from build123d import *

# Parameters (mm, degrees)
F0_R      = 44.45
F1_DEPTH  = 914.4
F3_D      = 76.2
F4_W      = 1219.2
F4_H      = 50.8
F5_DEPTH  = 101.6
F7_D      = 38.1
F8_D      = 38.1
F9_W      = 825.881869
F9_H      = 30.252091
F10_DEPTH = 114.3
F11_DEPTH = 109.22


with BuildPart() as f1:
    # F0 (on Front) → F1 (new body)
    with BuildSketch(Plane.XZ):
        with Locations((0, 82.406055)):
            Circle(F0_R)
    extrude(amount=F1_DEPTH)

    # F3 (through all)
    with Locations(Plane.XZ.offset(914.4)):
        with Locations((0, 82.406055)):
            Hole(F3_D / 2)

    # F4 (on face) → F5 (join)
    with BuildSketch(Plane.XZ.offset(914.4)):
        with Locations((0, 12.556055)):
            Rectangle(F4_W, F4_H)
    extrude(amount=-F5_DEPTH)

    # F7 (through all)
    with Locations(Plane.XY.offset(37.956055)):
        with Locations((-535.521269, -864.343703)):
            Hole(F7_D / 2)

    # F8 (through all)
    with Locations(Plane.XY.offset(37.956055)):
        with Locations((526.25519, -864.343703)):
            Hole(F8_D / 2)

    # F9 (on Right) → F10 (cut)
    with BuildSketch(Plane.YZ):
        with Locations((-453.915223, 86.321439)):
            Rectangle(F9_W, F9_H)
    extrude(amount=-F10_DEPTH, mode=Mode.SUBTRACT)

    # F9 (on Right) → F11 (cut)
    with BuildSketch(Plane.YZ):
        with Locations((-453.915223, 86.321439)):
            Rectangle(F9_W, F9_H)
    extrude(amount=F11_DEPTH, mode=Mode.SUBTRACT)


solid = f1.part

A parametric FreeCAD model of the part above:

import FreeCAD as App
import Part
import Sketcher

V = App.Vector
Q = App.Units.Quantity

doc = App.newDocument("Part")
body = doc.addObject("PartDesign::Body", "Body")
body.AllowCompound = True

# Sketch on XZ plane
sketch1 = body.newObject("Sketcher::SketchObject", "Sketch")
sketch1.AttachmentSupport = (doc.getObject("XZ_Plane"), [""])
sketch1.MapMode = "FlatFace"
sketch1.addGeometry(Part.Circle(V(0, 82, 0), V(0, 0, 1), 44), False)
sketch1.addConstraint([
    Sketcher.Constraint("PointOnObject", 0, 3, -2),
    Sketcher.Constraint("Diameter", 0, Q("3.5 in")),
    Sketcher.Constraint("DistanceY", -1, 1, 0, 3, 82.406055),
])
pad1 = body.newObject("PartDesign::Pad", "Pad")
pad1.Profile = sketch1
pad1.Length = Q("36 in")

# Sketch on XZ plane
sketch2 = body.newObject("Sketcher::SketchObject", "Sketch001")
sketch2.AttachmentSupport = (doc.getObject("XZ_Plane"), [""])
sketch2.MapMode = "FlatFace"
sketch2.AttachmentOffset = App.Placement(V(0, 0, 36 * 25.4), App.Rotation())
sketch2.addGeometry(Part.Circle(V(0, 82, 0), V(0, 0, 1), 38), False)
sketch2.addConstraint([
    Sketcher.Constraint("PointOnObject", 0, 3, -2),
    Sketcher.Constraint("Diameter", 0, Q("3 in")),
    Sketcher.Constraint("DistanceY", -1, 1, 0, 3, 82.406055),
])
doc.recompute()
hole = body.newObject("PartDesign::Hole", "Hole")
hole.Profile = sketch2
hole.ThreadType = "None"
hole.Diameter = Q("3 in")
hole.DepthType = "ThroughAll"

# Sketch on XZ plane
sketch3 = body.newObject("Sketcher::SketchObject", "Sketch002")
sketch3.AttachmentSupport = (doc.getObject("XZ_Plane"), [""])
sketch3.MapMode = "FlatFace"
sketch3.AttachmentOffset = App.Placement(V(0, 0, 36 * 25.4), App.Rotation())
sketch3.addGeometry([
    Part.LineSegment(V(-610, 38, 0), V(-610, -13, 0)),
    Part.LineSegment(V(-610, -13, 0), V(610, -13, 0)),
    Part.LineSegment(V(610, -13, 0), V(610, 38, 0)),
    Part.LineSegment(V(610, 38, 0), V(-610, 38, 0)),
], False)
sketch3.addConstraint([
    Sketcher.Constraint("Coincident", 0, 2, 1, 1),
    Sketcher.Constraint("Coincident", 1, 2, 2, 1),
    Sketcher.Constraint("Coincident", 2, 2, 3, 1),
    Sketcher.Constraint("Coincident", 3, 2, 0, 1),
    Sketcher.Constraint("Vertical", 0),
    Sketcher.Constraint("Horizontal", 1),
    Sketcher.Constraint("Vertical", 2),
    Sketcher.Constraint("Horizontal", 3),
    Sketcher.Constraint("DistanceX", 1, 1, 1, 2, Q("48 in")),
    Sketcher.Constraint("DistanceY", 0, 2, 0, 1, Q("2 in")),
    Sketcher.Constraint("DistanceX", 0, 2, -1, 1, Q("24 in")),
    Sketcher.Constraint("DistanceY", 0, 2, -1, 1, 12.843945),
])
pad2 = body.newObject("PartDesign::Pad", "Pad001")
pad2.Profile = sketch3
pad2.Length = Q("4 in")
pad2.Reversed = True

# Sketch on XY plane
sketch4 = body.newObject("Sketcher::SketchObject", "Sketch003")
sketch4.AttachmentSupport = (doc.getObject("XY_Plane"), [""])
sketch4.MapMode = "FlatFace"
sketch4.AttachmentOffset = App.Placement(V(0, 0, 37.956055), App.Rotation())
sketch4.addGeometry(Part.Circle(V(-536, -864, 0), V(0, 0, 1), 19), False)
sketch4.addConstraint([
    Sketcher.Constraint("Diameter", 0, Q("1.5 in")),
    Sketcher.Constraint("DistanceX", 0, 3, -1, 1, 535.521269),
    Sketcher.Constraint("DistanceY", 0, 3, -1, 1, 864.343703),
])
doc.recompute()
hole2 = body.newObject("PartDesign::Hole", "Hole001")
hole2.Profile = sketch4
hole2.ThreadType = "None"
hole2.Diameter = Q("1.5 in")
hole2.DepthType = "ThroughAll"

# Sketch on XY plane
sketch5 = body.newObject("Sketcher::SketchObject", "Sketch004")
sketch5.AttachmentSupport = (doc.getObject("XY_Plane"), [""])
sketch5.MapMode = "FlatFace"
sketch5.AttachmentOffset = App.Placement(V(0, 0, 37.956055), App.Rotation())
sketch5.addGeometry(Part.Circle(V(526, -864, 0), V(0, 0, 1), 19), False)
sketch5.addConstraint([
    Sketcher.Constraint("Diameter", 0, Q("1.5 in")),
    Sketcher.Constraint("DistanceX", -1, 1, 0, 3, 526.25519),
    Sketcher.Constraint("DistanceY", 0, 3, -1, 1, 864.343703),
])
doc.recompute()
hole3 = body.newObject("PartDesign::Hole", "Hole002")
hole3.Profile = sketch5
hole3.ThreadType = "None"
hole3.Diameter = Q("1.5 in")
hole3.DepthType = "ThroughAll"

# Sketch on YZ plane
sketch6 = body.newObject("Sketcher::SketchObject", "Sketch005")
sketch6.AttachmentSupport = (doc.getObject("YZ_Plane"), [""])
sketch6.MapMode = "FlatFace"
sketch6.addGeometry([
    Part.LineSegment(V(-867, 101, 0), V(-867, 71, 0)),
    Part.LineSegment(V(-867, 71, 0), V(-41, 71, 0)),
    Part.LineSegment(V(-41, 71, 0), V(-41, 101, 0)),
    Part.LineSegment(V(-41, 101, 0), V(-867, 101, 0)),
], False)
sketch6.addConstraint([
    Sketcher.Constraint("Coincident", 0, 2, 1, 1),
    Sketcher.Constraint("Coincident", 1, 2, 2, 1),
    Sketcher.Constraint("Coincident", 2, 2, 3, 1),
    Sketcher.Constraint("Coincident", 3, 2, 0, 1),
    Sketcher.Constraint("Vertical", 0),
    Sketcher.Constraint("Horizontal", 1),
    Sketcher.Constraint("Vertical", 2),
    Sketcher.Constraint("Horizontal", 3),
    Sketcher.Constraint("DistanceX", 1, 1, 1, 2, 825.881869),
    Sketcher.Constraint("DistanceY", 0, 2, 0, 1, 30.252091),
    Sketcher.Constraint("DistanceX", 1, 2, -1, 1, 40.974289),
    Sketcher.Constraint("DistanceY", -1, 1, 0, 2, 71.195393),
])
pocket1 = body.newObject("PartDesign::Pocket", "Pocket")
pocket1.Profile = sketch6
pocket1.Length = Q("4.5 in")

# Sketch on YZ plane
sketch7 = body.newObject("Sketcher::SketchObject", "Sketch006")
sketch7.AttachmentSupport = (doc.getObject("YZ_Plane"), [""])
sketch7.MapMode = "FlatFace"
sketch7.addGeometry([
    Part.LineSegment(V(-867, 101, 0), V(-867, 71, 0)),
    Part.LineSegment(V(-867, 71, 0), V(-41, 71, 0)),
    Part.LineSegment(V(-41, 71, 0), V(-41, 101, 0)),
    Part.LineSegment(V(-41, 101, 0), V(-867, 101, 0)),
], False)
sketch7.addConstraint([
    Sketcher.Constraint("Coincident", 0, 2, 1, 1),
    Sketcher.Constraint("Coincident", 1, 2, 2, 1),
    Sketcher.Constraint("Coincident", 2, 2, 3, 1),
    Sketcher.Constraint("Coincident", 3, 2, 0, 1),
    Sketcher.Constraint("Vertical", 0),
    Sketcher.Constraint("Horizontal", 1),
    Sketcher.Constraint("Vertical", 2),
    Sketcher.Constraint("Horizontal", 3),
    Sketcher.Constraint("DistanceX", 1, 1, 1, 2, 825.881869),
    Sketcher.Constraint("DistanceY", 0, 2, 0, 1, 30.252091),
    Sketcher.Constraint("DistanceX", 1, 2, -1, 1, 40.974289),
    Sketcher.Constraint("DistanceY", -1, 1, 0, 2, 71.195393),
])
pocket2 = body.newObject("PartDesign::Pocket", "Pocket001")
pocket2.Profile = sketch7
pocket2.Length = Q("4.3 in")
pocket2.Reversed = True

doc.recompute()
